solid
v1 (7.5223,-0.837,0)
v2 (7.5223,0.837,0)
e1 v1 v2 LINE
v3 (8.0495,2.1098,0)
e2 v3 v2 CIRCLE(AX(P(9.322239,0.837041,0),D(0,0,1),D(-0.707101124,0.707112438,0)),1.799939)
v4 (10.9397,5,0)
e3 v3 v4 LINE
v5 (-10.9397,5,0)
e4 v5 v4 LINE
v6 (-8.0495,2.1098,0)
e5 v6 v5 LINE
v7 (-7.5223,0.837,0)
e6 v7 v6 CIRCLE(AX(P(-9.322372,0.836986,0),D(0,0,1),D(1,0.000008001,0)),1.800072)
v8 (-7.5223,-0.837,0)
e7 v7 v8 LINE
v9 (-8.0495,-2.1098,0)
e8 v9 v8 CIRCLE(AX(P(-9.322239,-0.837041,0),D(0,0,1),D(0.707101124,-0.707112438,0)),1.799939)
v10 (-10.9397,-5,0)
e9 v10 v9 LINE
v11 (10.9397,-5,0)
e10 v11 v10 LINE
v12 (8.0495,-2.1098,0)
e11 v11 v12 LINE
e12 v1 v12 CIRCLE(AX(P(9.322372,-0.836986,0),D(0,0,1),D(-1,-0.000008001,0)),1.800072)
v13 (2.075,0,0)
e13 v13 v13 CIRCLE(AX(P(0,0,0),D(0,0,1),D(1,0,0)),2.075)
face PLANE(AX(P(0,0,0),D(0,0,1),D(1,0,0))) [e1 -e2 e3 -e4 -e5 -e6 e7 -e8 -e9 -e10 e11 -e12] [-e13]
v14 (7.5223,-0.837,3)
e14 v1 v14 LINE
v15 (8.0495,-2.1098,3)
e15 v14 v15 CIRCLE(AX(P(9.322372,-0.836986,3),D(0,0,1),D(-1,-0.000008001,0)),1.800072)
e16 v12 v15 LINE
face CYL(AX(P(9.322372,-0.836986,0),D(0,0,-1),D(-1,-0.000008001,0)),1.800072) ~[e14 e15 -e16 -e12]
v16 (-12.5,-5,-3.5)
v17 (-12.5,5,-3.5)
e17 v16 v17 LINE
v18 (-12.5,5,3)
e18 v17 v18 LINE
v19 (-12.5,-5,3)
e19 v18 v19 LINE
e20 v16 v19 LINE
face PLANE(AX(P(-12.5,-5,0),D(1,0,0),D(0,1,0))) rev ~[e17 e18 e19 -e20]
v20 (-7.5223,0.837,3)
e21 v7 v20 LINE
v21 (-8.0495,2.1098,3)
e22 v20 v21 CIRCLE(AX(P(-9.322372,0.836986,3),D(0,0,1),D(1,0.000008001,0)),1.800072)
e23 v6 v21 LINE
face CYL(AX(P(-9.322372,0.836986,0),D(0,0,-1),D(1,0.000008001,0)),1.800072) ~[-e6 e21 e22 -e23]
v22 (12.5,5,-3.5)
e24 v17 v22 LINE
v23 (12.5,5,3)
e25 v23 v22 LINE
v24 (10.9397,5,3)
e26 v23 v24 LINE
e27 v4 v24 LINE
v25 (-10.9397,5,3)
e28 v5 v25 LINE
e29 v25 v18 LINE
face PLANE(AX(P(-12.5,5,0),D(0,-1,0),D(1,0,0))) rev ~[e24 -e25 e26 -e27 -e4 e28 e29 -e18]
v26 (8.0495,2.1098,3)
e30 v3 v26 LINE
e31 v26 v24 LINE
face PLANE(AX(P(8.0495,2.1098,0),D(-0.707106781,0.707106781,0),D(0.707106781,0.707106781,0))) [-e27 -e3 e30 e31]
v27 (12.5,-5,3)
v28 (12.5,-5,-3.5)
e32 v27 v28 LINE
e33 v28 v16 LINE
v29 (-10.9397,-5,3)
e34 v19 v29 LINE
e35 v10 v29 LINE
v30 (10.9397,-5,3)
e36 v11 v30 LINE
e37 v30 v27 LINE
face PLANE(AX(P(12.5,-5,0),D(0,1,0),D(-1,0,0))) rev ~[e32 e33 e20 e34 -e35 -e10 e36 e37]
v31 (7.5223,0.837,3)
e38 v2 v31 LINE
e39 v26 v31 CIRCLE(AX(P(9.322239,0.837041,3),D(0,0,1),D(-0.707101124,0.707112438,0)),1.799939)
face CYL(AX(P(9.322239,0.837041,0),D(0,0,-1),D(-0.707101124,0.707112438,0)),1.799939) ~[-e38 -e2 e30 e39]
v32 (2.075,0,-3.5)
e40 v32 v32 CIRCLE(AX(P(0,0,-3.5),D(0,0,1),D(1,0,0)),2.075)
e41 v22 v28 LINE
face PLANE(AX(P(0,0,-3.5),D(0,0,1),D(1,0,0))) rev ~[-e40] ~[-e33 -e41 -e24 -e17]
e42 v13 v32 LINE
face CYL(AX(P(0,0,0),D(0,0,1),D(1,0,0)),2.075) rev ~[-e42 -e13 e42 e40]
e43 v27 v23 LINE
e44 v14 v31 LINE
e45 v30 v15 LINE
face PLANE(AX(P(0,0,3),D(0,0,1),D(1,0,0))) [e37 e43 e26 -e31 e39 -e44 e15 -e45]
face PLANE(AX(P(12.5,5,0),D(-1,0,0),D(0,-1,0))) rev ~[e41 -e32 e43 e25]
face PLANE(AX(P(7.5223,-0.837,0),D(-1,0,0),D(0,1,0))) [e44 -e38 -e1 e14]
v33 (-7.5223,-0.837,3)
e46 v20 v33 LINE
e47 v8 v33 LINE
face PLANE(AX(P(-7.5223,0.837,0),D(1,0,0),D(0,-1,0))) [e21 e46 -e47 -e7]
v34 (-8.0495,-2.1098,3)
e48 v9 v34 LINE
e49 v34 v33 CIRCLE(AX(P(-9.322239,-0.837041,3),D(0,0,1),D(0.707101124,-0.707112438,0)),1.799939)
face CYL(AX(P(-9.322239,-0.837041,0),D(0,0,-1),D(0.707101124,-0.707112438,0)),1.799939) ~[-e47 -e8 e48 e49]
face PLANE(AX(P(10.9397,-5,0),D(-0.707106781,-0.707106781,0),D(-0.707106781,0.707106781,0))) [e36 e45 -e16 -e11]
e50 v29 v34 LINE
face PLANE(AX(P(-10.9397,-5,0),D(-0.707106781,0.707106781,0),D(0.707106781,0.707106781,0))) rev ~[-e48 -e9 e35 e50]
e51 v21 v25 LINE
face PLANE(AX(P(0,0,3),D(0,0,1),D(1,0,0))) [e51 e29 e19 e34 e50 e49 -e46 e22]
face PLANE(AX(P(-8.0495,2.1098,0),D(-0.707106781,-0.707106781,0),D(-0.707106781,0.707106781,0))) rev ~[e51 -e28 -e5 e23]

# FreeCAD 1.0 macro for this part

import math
import FreeCAD as App
import Part
import Sketcher
from FreeCAD import Vector


def add_polygon(sketch, points):
    """Adds a closed chain of lines whose ends are joined by coincident constraints."""
    first, n = sketch.GeometryCount, len(points)
    for a, b in zip(points, points[1:] + points[:1]):
        sketch.addGeometry(Part.LineSegment(App.Vector(*a, 0), App.Vector(*b, 0)), False)
    for i in range(n):
        sketch.addConstraint(Sketcher.Constraint("Coincident", first + i, 2, first + (i + 1) % n, 1))

doc = App.newDocument("Part")
body = doc.addObject("PartDesign::Body", "Body")

sketch1 = doc.addObject("Sketcher::SketchObject", "Sketch")
body.addObject(sketch1)
sketch1.AttachmentSupport = (doc.XY_Plane, [""])
sketch1.MapMode = "FlatFace"
add_polygon(sketch1, [(12.5, 5), (-12.5, 5), (-12.5, -5), (12.5, -5)])
sketch1.addGeometry(Part.Circle(Vector(0, 0, 0), Vector(0, 0, 1), 2.075), False)
sketch1.addConstraint([
    Sketcher.Constraint("Horizontal", 0),
    Sketcher.Constraint("Vertical", 1),
    Sketcher.Constraint("Horizontal", 2),
    Sketcher.Constraint("Vertical", 3),
    Sketcher.Constraint("Coincident", 4, 3, -1, 1),
    Sketcher.Constraint("Symmetric", 0, 2, 2, 2, -1, 1),
    Sketcher.Constraint("Diameter", 4, 4.15),
    Sketcher.Constraint("DistanceX", 0, 2, 0, 1, 25.0),
    Sketcher.Constraint("DistanceY", 1, 2, 1, 1, 10.0),
])
pad1 = doc.addObject("PartDesign::Pad", "Pad")
body.addObject(pad1)
pad1.Profile = sketch1
pad1.Length = 3.5
pad1.Reversed = True

sketch2 = doc.addObject("Sketcher::SketchObject", "Sketch001")
body.addObject(sketch2)
sketch2.AttachmentSupport = (doc.XY_Plane, [""])
sketch2.MapMode = "FlatFace"
sketch2.addGeometry([
    Part.LineSegment(Vector(-8.0495, 2.1098, 0), Vector(-10.9397, 5, 0)),
    Part.LineSegment(Vector(-10.9397, 5, 0), Vector(-12.5, 5, 0)),
    Part.LineSegment(Vector(-12.5, 5, 0), Vector(-12.5, -5, 0)),
    Part.LineSegment(Vector(-12.5, -5, 0), Vector(-10.9397, -5, 0)),
    Part.LineSegment(Vector(-10.9397, -5, 0), Vector(-8.0495, -2.1098, 0)),
    Part.ArcOfCircle(Part.Circle(Vector(-9.3223, -0.837, 0), Vector(0, 0, 1), 1.800011), math.radians(-45), math.radians(0)),
    Part.LineSegment(Vector(-7.5223, -0.837, 0), Vector(-7.5223, 0.837, 0)),
    Part.ArcOfCircle(Part.Circle(Vector(-9.3223, 0.837, 0), Vector(0, 0, 1), 1.8), math.radians(0), math.radians(45)),
    Part.LineSegment(Vector(12.5, 5, 0), Vector(10.9397, 5, 0)),
    Part.LineSegment(Vector(10.9397, 5, 0), Vector(8.0495, 2.1098, 0)),
    Part.ArcOfCircle(Part.Circle(Vector(9.3223, 0.837, 0), Vector(0, 0, 1), 1.800011), math.radians(135), math.radians(180)),
    Part.LineSegment(Vector(7.5223, 0.837, 0), Vector(7.5223, -0.837, 0)),
    Part.ArcOfCircle(Part.Circle(Vector(9.3223, -0.837, 0), Vector(0, 0, 1), 1.8), math.radians(180), math.radians(225)),
    Part.LineSegment(Vector(8.0495, -2.1098, 0), Vector(10.9397, -5, 0)),
    Part.LineSegment(Vector(10.9397, -5, 0), Vector(12.5, -5, 0)),
    Part.LineSegment(Vector(12.5, -5, 0), Vector(12.5, 5, 0)),
], False)
sketch2.addConstraint([
    Sketcher.Constraint("Coincident", 0, 2, 1, 1),
    Sketcher.Constraint("Coincident", 1, 2, 2, 1),
    Sketcher.Constraint("Coincident", 2, 2, 3, 1),
    Sketcher.Constraint("Coincident", 3, 2, 4, 1),
    Sketcher.Constraint("Tangent", 4, 2, 5, 1),
    Sketcher.Constraint("Tangent", 5, 2, 6, 1),
    Sketcher.Constraint("Tangent", 6, 2, 7, 1),
    Sketcher.Constraint("Tangent", 7, 2, 0, 1),
    Sketcher.Constraint("Coincident", 8, 2, 9, 1),
    Sketcher.Constraint("Tangent", 9, 2, 10, 1),
    Sketcher.Constraint("Tangent", 10, 2, 11, 1),
    Sketcher.Constraint("Tangent", 11, 2, 12, 1),
    Sketcher.Constraint("Tangent", 12, 2, 13, 1),
    Sketcher.Constraint("Coincident", 13, 2, 14, 1),
    Sketcher.Constraint("Coincident", 14, 2, 15, 1),
    Sketcher.Constraint("Coincident", 15, 2, 8, 1),
    Sketcher.Constraint("Horizontal", 1),
    Sketcher.Constraint("Vertical", 2),
    Sketcher.Constraint("Horizontal", 3),
    Sketcher.Constraint("Vertical", 6),
    Sketcher.Constraint("Horizontal", 8),
    Sketcher.Constraint("Vertical", 11),
    Sketcher.Constraint("Horizontal", 14),
    Sketcher.Constraint("Vertical", 15),
    Sketcher.Constraint("Equal", 5, 7),
    Sketcher.Constraint("Equal", 7, 10),
    Sketcher.Constraint("Equal", 10, 12),
    Sketcher.Constraint("Symmetric", 5, 3, 10, 3, -1, 1),
    Sketcher.Constraint("Symmetric", 3, 2, 8, 2, -1, 1),
    Sketcher.Constraint("Symmetric", 7, 2, 12, 2, -1, 1),
    Sketcher.Constraint("Symmetric", 1, 2, 14, 2, -1, 1),
    Sketcher.Constraint("Symmetric", 0, 2, 8, 2, -2),
    Sketcher.Constraint("Perpendicular", 0, 4),
    Sketcher.Constraint("Horizontal", 7, 3, 10, 3),
    Sketcher.Constraint("Radius", 5, 1.8),
    Sketcher.Constraint("DistanceY", 2, 2, 2, 1, 10.0),
    Sketcher.Constraint("DistanceX", 1, 2, -1, 1, 12.5),
    Sketcher.Constraint("DistanceY", 6, 1, 6, 2, 1.674),
    Sketcher.Constraint("DistanceX", 1, 2, 1, 1, 1.5603),
])
pad2 = doc.addObject("PartDesign::Pad", "Pad001")
body.addObject(pad2)
pad2.Profile = sketch2
pad2.Length = 3

doc.recompute()
